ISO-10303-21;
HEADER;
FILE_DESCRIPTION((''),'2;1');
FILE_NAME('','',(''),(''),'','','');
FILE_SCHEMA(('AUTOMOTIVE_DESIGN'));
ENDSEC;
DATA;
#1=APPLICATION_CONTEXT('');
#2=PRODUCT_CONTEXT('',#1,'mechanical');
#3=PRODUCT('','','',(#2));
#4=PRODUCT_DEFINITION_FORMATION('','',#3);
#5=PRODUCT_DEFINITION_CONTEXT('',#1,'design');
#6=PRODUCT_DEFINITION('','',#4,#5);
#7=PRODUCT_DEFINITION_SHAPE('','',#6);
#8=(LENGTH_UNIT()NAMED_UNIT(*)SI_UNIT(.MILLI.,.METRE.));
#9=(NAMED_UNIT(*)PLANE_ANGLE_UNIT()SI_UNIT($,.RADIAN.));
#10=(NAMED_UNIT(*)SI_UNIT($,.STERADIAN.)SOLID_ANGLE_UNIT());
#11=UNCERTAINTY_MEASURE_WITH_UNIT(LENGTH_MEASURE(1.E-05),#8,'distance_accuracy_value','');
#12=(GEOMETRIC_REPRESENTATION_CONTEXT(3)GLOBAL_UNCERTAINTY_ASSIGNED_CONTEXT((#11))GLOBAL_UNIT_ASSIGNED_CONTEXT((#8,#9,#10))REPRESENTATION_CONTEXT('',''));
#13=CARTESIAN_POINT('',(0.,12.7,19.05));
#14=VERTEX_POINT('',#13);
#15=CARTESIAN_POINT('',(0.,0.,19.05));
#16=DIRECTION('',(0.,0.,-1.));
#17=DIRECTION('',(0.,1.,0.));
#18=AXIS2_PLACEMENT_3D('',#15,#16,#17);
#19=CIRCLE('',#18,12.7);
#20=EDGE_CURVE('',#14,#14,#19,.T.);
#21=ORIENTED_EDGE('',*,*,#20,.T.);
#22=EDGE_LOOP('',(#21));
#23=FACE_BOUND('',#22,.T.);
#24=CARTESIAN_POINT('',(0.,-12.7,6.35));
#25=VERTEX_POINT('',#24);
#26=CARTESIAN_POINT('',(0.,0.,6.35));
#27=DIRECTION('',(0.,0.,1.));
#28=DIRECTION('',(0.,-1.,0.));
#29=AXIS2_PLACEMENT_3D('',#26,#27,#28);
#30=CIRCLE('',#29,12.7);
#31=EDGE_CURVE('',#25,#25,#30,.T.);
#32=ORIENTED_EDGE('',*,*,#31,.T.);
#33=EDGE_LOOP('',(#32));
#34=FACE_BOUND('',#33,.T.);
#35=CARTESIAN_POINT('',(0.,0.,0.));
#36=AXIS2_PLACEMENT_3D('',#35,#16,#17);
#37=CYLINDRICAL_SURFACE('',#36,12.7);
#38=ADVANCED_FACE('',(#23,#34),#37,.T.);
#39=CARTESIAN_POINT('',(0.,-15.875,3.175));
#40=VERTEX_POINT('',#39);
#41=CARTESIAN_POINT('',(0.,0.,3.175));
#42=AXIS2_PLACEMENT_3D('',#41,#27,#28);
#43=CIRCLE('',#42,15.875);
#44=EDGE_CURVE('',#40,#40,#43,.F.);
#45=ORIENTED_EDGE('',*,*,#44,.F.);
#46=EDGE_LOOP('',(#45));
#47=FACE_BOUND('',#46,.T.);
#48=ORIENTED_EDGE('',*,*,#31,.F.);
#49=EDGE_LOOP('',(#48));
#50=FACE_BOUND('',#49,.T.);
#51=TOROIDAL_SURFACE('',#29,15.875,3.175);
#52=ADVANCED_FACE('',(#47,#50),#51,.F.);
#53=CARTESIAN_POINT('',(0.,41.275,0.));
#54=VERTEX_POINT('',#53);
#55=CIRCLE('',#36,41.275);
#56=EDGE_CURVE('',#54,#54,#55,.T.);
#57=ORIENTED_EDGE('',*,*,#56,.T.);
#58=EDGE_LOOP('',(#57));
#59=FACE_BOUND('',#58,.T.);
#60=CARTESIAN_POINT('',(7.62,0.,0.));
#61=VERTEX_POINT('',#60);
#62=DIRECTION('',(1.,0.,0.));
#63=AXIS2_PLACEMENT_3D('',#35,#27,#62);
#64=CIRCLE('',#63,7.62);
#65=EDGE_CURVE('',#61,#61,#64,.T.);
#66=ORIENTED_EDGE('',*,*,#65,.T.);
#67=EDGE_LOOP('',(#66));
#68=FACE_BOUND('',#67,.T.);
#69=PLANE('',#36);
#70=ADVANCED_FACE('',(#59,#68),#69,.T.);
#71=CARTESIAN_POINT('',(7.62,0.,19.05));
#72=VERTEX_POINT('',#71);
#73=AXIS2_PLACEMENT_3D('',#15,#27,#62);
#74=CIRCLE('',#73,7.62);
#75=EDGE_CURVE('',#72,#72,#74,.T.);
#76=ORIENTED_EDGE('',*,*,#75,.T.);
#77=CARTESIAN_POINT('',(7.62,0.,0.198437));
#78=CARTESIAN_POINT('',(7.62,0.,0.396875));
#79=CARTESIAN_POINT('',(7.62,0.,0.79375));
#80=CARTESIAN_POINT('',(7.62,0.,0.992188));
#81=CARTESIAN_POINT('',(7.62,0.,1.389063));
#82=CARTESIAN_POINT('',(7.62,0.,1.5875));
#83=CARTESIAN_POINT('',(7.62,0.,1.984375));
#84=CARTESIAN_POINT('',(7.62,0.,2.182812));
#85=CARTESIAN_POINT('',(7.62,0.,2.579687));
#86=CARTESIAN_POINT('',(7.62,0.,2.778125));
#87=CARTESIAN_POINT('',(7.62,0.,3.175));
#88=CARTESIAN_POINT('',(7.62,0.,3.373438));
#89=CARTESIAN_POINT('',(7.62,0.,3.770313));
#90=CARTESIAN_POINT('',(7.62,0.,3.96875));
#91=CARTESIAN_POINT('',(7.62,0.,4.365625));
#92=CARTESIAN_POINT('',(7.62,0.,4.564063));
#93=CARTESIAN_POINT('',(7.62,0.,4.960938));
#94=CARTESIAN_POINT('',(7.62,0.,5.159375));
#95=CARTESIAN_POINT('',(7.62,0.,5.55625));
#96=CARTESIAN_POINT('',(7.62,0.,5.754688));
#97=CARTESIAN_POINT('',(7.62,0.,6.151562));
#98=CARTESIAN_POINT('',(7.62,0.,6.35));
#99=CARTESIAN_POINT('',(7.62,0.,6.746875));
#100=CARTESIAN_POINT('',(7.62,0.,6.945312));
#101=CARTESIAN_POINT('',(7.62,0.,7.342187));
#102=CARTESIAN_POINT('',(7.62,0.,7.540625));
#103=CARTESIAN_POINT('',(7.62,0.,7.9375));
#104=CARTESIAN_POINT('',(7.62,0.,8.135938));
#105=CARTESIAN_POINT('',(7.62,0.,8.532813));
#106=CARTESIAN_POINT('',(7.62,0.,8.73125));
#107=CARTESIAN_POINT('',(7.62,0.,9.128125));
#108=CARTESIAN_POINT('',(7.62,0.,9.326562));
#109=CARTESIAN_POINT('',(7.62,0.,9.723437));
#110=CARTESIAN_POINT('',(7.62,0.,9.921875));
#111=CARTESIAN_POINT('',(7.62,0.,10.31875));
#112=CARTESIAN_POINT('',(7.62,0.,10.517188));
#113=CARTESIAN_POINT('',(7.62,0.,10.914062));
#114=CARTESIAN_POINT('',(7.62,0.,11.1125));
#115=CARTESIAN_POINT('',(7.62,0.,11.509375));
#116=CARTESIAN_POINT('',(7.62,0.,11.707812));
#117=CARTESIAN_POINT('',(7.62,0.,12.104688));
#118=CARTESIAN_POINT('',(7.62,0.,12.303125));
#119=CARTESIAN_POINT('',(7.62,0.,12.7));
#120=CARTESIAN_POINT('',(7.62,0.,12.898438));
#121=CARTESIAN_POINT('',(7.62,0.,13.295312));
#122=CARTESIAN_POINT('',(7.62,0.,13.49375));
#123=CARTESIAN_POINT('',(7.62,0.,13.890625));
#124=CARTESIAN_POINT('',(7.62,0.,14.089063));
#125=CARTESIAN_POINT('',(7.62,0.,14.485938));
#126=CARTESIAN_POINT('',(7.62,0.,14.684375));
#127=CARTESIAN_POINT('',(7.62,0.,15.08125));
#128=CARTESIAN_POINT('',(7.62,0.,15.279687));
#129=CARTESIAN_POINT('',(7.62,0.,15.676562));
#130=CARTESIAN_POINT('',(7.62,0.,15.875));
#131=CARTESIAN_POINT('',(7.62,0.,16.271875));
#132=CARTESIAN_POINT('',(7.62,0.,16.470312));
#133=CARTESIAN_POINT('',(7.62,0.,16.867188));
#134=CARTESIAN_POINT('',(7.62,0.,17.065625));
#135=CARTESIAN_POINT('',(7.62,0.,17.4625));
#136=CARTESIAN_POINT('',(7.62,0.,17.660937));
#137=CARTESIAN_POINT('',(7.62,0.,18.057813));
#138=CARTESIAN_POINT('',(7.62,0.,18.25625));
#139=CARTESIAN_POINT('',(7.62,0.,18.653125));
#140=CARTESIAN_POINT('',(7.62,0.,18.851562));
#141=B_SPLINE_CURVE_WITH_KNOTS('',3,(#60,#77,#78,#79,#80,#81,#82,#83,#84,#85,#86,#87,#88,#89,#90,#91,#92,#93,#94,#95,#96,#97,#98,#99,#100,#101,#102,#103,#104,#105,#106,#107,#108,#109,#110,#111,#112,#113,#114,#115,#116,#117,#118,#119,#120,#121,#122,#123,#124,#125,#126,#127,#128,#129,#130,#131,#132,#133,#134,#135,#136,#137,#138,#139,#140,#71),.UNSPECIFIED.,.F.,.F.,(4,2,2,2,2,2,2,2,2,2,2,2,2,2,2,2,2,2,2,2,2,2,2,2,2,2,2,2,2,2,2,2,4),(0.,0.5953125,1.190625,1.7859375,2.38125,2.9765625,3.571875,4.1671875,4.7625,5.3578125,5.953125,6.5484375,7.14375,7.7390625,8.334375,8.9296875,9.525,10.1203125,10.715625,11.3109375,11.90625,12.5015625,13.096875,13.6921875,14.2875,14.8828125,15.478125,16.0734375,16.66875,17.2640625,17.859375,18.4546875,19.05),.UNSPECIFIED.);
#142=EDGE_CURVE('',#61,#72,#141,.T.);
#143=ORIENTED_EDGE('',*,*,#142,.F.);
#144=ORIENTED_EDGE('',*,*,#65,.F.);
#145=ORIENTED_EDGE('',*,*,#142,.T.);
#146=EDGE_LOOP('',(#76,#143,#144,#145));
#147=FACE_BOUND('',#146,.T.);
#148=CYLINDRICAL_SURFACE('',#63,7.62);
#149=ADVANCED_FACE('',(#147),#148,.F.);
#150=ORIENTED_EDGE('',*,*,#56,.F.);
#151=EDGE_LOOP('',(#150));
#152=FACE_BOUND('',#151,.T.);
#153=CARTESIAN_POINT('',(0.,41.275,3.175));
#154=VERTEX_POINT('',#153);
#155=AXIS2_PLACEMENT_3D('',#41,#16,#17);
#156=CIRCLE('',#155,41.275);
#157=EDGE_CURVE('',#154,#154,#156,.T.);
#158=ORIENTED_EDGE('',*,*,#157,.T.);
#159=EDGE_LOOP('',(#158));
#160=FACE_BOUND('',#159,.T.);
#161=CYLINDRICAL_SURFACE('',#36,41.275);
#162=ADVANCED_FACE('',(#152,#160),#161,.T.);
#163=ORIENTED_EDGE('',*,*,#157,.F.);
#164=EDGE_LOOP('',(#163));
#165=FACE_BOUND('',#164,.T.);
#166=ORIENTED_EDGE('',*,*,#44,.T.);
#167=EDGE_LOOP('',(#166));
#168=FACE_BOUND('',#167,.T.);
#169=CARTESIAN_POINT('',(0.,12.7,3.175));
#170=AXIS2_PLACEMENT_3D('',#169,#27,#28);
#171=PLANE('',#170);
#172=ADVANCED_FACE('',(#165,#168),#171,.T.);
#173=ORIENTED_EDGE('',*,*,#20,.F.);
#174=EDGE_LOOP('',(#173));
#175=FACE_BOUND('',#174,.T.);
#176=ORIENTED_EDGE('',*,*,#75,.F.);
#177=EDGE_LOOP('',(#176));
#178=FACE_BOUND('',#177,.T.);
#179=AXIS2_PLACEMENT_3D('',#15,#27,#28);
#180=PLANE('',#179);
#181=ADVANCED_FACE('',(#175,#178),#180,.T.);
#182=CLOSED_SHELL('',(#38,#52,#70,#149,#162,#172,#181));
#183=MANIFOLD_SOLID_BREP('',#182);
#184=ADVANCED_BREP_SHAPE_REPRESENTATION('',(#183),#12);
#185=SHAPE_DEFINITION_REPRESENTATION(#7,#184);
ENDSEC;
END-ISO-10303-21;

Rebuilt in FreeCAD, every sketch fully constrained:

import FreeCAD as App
import Part
import Sketcher

V = App.Vector
Q = App.Units.Quantity


def edges_at(feature, points):
    """Names of the edges that pass closest to the given points."""
    edges = feature.Shape.Edges
    near = lambda p: min(range(len(edges)), key=lambda i: edges[i].distToShape(Part.Vertex(*p))[0])
    return sorted({f"Edge{near(p) + 1}" for p in points})


def add_polygon(sketch, points):
    """Adds a closed chain of lines whose ends are joined by coincident constraints."""
    first, n = sketch.GeometryCount, len(points)
    for a, b in zip(points, points[1:] + points[:1]):
        sketch.addGeometry(Part.LineSegment(App.Vector(*a, 0), App.Vector(*b, 0)), False)
    for i in range(n):
        sketch.addConstraint(Sketcher.Constraint("Coincident", first + i, 2, first + (i + 1) % n, 1))

doc = App.newDocument("Part")
body = doc.addObject("PartDesign::Body", "Body")

# Sketch on YZ plane
sketch1 = body.newObject("Sketcher::SketchObject", "Sketch")
sketch1.AttachmentSupport = (doc.getObject("YZ_Plane"), [""])
sketch1.MapMode = "FlatFace"
add_polygon(sketch1, [(0, 0), (41.3, 0), (41.3, 3.2), (12.7, 3.2), (12.7, 19.1), (0, 19.1)])  # lines 0-5
sketch1.addConstraint([
    Sketcher.Constraint("Horizontal", 0),
    Sketcher.Constraint("Vertical", 1),
    Sketcher.Constraint("Horizontal", 2),
    Sketcher.Constraint("Vertical", 3),
    Sketcher.Constraint("Horizontal", 4),
    Sketcher.Constraint("Vertical", 5),
    Sketcher.Constraint("Coincident", 5, 2, -1, 1),
    Sketcher.Constraint("DistanceX", 4, 2, 4, 1, Q("0.5 in")),
    Sketcher.Constraint("DistanceY", 5, 2, 5, 1, Q("0.75 in")),
    Sketcher.Constraint("DistanceX", 0, 1, 0, 2, Q("1.625 in")),
    Sketcher.Constraint("DistanceY", 1, 1, 1, 2, Q("0.125 in")),
])
revolution = body.newObject("PartDesign::Revolution", "Revolution")
revolution.Profile = sketch1
revolution.ReferenceAxis = (sketch1, ["V_Axis"])
revolution.Angle = 360

# Sketch on XY plane
sketch2 = body.newObject("Sketcher::SketchObject", "Sketch001")
sketch2.AttachmentSupport = (doc.getObject("XY_Plane"), [""])
sketch2.MapMode = "FlatFace"
sketch2.AttachmentOffset = App.Placement(V(0, 0, 0.75 * 25.4), App.Rotation())
sketch2.addGeometry(Part.Circle(V(0, 0, 0), V(0, 0, 1), 8), False)
sketch2.addConstraint([
    Sketcher.Constraint("Coincident", 0, 3, -1, 1),
    Sketcher.Constraint("Diameter", 0, Q("0.6 in")),
])
pocket1 = body.newObject("PartDesign::Pocket", "Pocket")
pocket1.Profile = sketch2
pocket1.Type = "ThroughAll"
doc.recompute()

fillet = body.newObject("PartDesign::Fillet", "Fillet")
fillet.Base = (pocket1, edges_at(pocket1, [(0, -12.7, 3.175)]))
fillet.Radius = Q("0.125 in")

doc.recompute()
